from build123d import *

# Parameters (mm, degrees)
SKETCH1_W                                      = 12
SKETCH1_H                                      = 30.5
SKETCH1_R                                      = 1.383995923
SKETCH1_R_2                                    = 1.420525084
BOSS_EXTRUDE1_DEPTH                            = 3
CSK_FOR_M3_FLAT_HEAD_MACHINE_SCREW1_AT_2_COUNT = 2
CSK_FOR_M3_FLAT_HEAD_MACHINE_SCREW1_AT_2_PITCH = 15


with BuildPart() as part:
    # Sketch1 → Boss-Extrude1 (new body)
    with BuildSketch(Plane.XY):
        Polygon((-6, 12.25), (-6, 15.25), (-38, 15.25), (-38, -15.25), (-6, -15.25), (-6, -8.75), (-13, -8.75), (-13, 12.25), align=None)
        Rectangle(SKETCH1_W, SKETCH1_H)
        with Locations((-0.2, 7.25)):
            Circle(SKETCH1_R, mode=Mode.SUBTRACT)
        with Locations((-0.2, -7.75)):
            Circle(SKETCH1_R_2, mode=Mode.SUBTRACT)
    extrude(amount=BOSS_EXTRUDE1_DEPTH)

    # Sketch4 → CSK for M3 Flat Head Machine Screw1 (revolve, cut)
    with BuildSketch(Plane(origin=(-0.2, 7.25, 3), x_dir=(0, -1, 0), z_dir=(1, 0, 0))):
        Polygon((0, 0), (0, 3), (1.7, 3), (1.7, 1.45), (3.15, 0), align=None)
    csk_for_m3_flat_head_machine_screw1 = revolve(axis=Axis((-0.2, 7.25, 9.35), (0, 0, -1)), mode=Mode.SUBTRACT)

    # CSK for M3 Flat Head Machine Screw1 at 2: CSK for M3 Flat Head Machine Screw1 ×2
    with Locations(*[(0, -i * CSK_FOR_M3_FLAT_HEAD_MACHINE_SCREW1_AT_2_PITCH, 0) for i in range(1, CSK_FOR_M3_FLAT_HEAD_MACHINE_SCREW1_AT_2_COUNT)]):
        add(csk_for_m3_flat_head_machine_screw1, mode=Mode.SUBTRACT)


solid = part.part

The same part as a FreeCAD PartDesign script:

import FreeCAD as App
import Part
import Sketcher
from FreeCAD import Vector
Q = App.Units.Quantity

doc = App.newDocument("Part")
body = doc.addObject("PartDesign::Body", "Body")

# Sketch on XY plane
sketch1 = body.newObject("Sketcher::SketchObject", "Sketch")
sketch1.AttachmentSupport = (doc.getObject("XY_Plane"), [""])
sketch1.MapMode = "FlatFace"
sketch1.addGeometry(Part.LineSegment(Vector(-38, 15.2, 0), Vector(-38, -15.2, 0)), False)
sketch1.addGeometry(Part.LineSegment(Vector(-38, -15.2, 0), Vector(6, -15.2, 0)), False)
sketch1.addGeometry(Part.LineSegment(Vector(6, -15.2, 0), Vector(6, 15.2, 0)), False)
sketch1.addGeometry(Part.LineSegment(Vector(6, 15.2, 0), Vector(-38, 15.2, 0)), False)
sketch1.addGeometry(Part.Circle(Vector(-0.2, -7.8, 0), Vector(0, 0, 1), 1.4), False)
sketch1.addGeometry(Part.LineSegment(Vector(-6, -8.8, 0), Vector(-13, -8.8, 0)), False)
sketch1.addGeometry(Part.LineSegment(Vector(-13, -8.8, 0), Vector(-13, 12.2, 0)), False)
sketch1.addGeometry(Part.LineSegment(Vector(-13, 12.2, 0), Vector(-6, 12.2, 0)), False)
sketch1.addGeometry(Part.LineSegment(Vector(-6, 12.2, 0), Vector(-6, -8.8, 0)), False)
sketch1.addGeometry(Part.Circle(Vector(-0.2, 7.2, 0), Vector(0, 0, 1), 1.4), False)
sketch1.addConstraint(Sketcher.Constraint("Coincident", 0, 2, 1, 1))
sketch1.addConstraint(Sketcher.Constraint("Coincident", 1, 2, 2, 1))
sketch1.addConstraint(Sketcher.Constraint("Coincident", 2, 2, 3, 1))
sketch1.addConstraint(Sketcher.Constraint("Coincident", 3, 2, 0, 1))
sketch1.addConstraint(Sketcher.Constraint("Coincident", 5, 2, 6, 1))
sketch1.addConstraint(Sketcher.Constraint("Coincident", 6, 2, 7, 1))
sketch1.addConstraint(Sketcher.Constraint("Coincident", 7, 2, 8, 1))
sketch1.addConstraint(Sketcher.Constraint("Coincident", 8, 2, 5, 1))
sketch1.addConstraint(Sketcher.Constraint("Vertical", 0))
sketch1.addConstraint(Sketcher.Constraint("Horizontal", 1))
sketch1.addConstraint(Sketcher.Constraint("Vertical", 2))
sketch1.addConstraint(Sketcher.Constraint("Horizontal", 3))
sketch1.addConstraint(Sketcher.Constraint("Horizontal", 5))
sketch1.addConstraint(Sketcher.Constraint("Vertical", 6))
sketch1.addConstraint(Sketcher.Constraint("Horizontal", 7))
sketch1.addConstraint(Sketcher.Constraint("Vertical", 8))
sketch1.addConstraint(Sketcher.Constraint("Vertical", 4, 3, 9, 3))
sketch1.addConstraint(Sketcher.Constraint("DistanceX", 1, 1, 1, 2, Q("44 mm")))
sketch1.addConstraint(Sketcher.Constraint("DistanceX", 5, 2, 5, 1, Q("7 mm")))
sketch1.addConstraint(Sketcher.Constraint("DistanceY", 6, 1, 6, 2, Q("21 mm")))
sketch1.addConstraint(Sketcher.Constraint("DistanceY", 0, 2, 0, 1, Q("30.5 mm")))
sketch1.addConstraint(Sketcher.Constraint("DistanceX", 0, 2, -1, 1, Q("38 mm")))
sketch1.addConstraint(Sketcher.Constraint("DistanceX", 5, 2, -1, 1, Q("13 mm")))
sketch1.addConstraint(Sketcher.Constraint("DistanceY", 4, 3, 9, 3, Q("15 mm")))
sketch1.addConstraint(Sketcher.Constraint("DistanceY", 9, 3, 2, 2, Q("8 mm")))
sketch1.addConstraint(Sketcher.Constraint("DistanceY", 5, 2, 4, 3, Q("1 mm")))
sketch1.addConstraint(Sketcher.Constraint("DistanceX", 4, 3, -1, 1, Q("0.2 mm")))
sketch1.addConstraint(Sketcher.Constraint("Diameter", 4, Q("2.84105 mm")))
sketch1.addConstraint(Sketcher.Constraint("Diameter", 9, Q("2.767992 mm")))
sketch1.addConstraint(Sketcher.Constraint("DistanceY", 4, 3, -1, 1, Q("7.75 mm")))
pad1 = body.newObject("PartDesign::Pad", "Pad")
pad1.Profile = sketch1
pad1.Length = 3

# Sketch on YZ plane
sketch2 = body.newObject("Sketcher::SketchObject", "Sketch001")
sketch2.AttachmentSupport = (doc.getObject("YZ_Plane"), [""])
sketch2.MapMode = "FlatFace"
sketch2.AttachmentOffset = App.Placement(Vector(0, 0, -0.2), App.Rotation())
sketch2.addGeometry(Part.LineSegment(Vector(7.2, 0, 0), Vector(7.2, 3, 0)), False)
sketch2.addGeometry(Part.LineSegment(Vector(7.2, 3, 0), Vector(4.1, 3, 0)), False)
sketch2.addGeometry(Part.LineSegment(Vector(4.1, 3, 0), Vector(5.5, 1.6, 0)), False)
sketch2.addGeometry(Part.LineSegment(Vector(5.5, 1.6, 0), Vector(5.5, 0, 0)), False)
sketch2.addGeometry(Part.LineSegment(Vector(5.5, 0, 0), Vector(7.2, 0, 0)), False)
sketch2.addGeometry(Part.LineSegment(Vector(7.2, 3, 0), Vector(7.2, 0, 0)), True)  # axis
sketch2.addConstraint(Sketcher.Constraint("Coincident", 0, 2, 1, 1))
sketch2.addConstraint(Sketcher.Constraint("Coincident", 1, 2, 2, 1))
sketch2.addConstraint(Sketcher.Constraint("Coincident", 2, 2, 3, 1))
sketch2.addConstraint(Sketcher.Constraint("Coincident", 3, 2, 4, 1))
sketch2.addConstraint(Sketcher.Constraint("Coincident", 4, 2, 0, 1))
sketch2.addConstraint(Sketcher.Constraint("Vertical", 0))
sketch2.addConstraint(Sketcher.Constraint("Horizontal", 1))
sketch2.addConstraint(Sketcher.Constraint("Vertical", 3))
sketch2.addConstraint(Sketcher.Constraint("Horizontal", 4))
sketch2.addConstraint(Sketcher.Constraint("Vertical", 5))
sketch2.addConstraint(Sketcher.Constraint("Coincident", 5, 1, 0, 2))
sketch2.addConstraint(Sketcher.Constraint("PointOnObject", 3, 2, -1))
sketch2.addConstraint(Sketcher.Constraint("PointOnObject", 5, 2, -1))
sketch2.addConstraint(Sketcher.Constraint("DistanceY", 0, 1, 0, 2, Q("3 mm")))
sketch2.addConstraint(Sketcher.Constraint("Angle", 2, Q("-45 deg")))
sketch2.addConstraint(Sketcher.Constraint("DistanceX", 4, 1, 4, 2, Q("1.7 mm")))
sketch2.addConstraint(Sketcher.Constraint("DistanceX", 1, 2, 1, 1, Q("3.15 mm")))
sketch2.addConstraint(Sketcher.Constraint("DistanceX", -1, 1, 1, 2, Q("4.1 mm")))
groove = body.newObject("PartDesign::Groove", "Groove")
groove.Profile = sketch2
groove.ReferenceAxis = (sketch2, ["Axis0"])
groove.Angle = 360
doc.recompute()

linearpattern = body.newObject("PartDesign::LinearPattern", "LinearPattern")
linearpattern.Originals = [groove]
linearpattern.Direction = (doc.getObject("Y_Axis"), [""])
linearpattern.Mode = "offset"
linearpattern.Offset = 15
linearpattern.Occurrences = 2
linearpattern.Reversed = True
body.Tip = linearpattern

doc.recompute()
